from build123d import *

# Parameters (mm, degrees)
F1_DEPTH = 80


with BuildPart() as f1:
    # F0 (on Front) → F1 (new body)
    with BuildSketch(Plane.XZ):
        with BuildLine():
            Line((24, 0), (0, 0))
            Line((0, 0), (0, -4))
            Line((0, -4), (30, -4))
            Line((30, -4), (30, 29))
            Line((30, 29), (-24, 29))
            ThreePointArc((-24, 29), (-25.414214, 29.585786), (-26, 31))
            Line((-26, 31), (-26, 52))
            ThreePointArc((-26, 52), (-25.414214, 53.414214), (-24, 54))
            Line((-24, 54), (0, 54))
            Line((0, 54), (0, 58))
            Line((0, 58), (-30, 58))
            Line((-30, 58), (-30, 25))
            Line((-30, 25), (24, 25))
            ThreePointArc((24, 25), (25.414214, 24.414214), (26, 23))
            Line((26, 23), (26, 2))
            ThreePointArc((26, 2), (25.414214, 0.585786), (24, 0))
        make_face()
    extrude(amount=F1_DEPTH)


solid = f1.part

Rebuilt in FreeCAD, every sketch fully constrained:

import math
import FreeCAD as App
import Part
import Sketcher
Q = App.Units.Quantity

doc = App.newDocument("Part")
body = doc.addObject("PartDesign::Body", "Body")

sketch1 = body.newObject("Sketcher::SketchObject", "Sketch")
sketch1.AttachmentSupport = (doc.getObject("XZ_Plane"), [""])
sketch1.MapMode = "FlatFace"
sketch1.addGeometry([
    Part.LineSegment(App.Vector(24, 0, 0), App.Vector(0, 0, 0)),
    Part.LineSegment(App.Vector(0, 0, 0), App.Vector(0, -4, 0)),
    Part.LineSegment(App.Vector(0, -4, 0), App.Vector(30, -4, 0)),
    Part.LineSegment(App.Vector(30, -4, 0), App.Vector(30, 29, 0)),
    Part.LineSegment(App.Vector(30, 29, 0), App.Vector(-24, 29, 0)),
    Part.ArcOfCircle(Part.Circle(App.Vector(-24, 31, 0), App.Vector(0, 0, 1), 2), math.radians(180), math.radians(270)),
    Part.LineSegment(App.Vector(-26, 31, 0), App.Vector(-26, 52, 0)),
    Part.ArcOfCircle(Part.Circle(App.Vector(-24, 52, 0), App.Vector(0, 0, 1), 2), math.radians(90), math.radians(180)),
    Part.LineSegment(App.Vector(-24, 54, 0), App.Vector(0, 54, 0)),
    Part.LineSegment(App.Vector(0, 54, 0), App.Vector(0, 58, 0)),
    Part.LineSegment(App.Vector(0, 58, 0), App.Vector(-30, 58, 0)),
    Part.LineSegment(App.Vector(-30, 58, 0), App.Vector(-30, 25, 0)),
    Part.LineSegment(App.Vector(-30, 25, 0), App.Vector(24, 25, 0)),
    Part.ArcOfCircle(Part.Circle(App.Vector(24, 23, 0), App.Vector(0, 0, 1), 2), math.radians(0), math.radians(90)),
    Part.LineSegment(App.Vector(26, 23, 0), App.Vector(26, 2, 0)),
    Part.ArcOfCircle(Part.Circle(App.Vector(24, 2, 0), App.Vector(0, 0, 1), 2), math.radians(-90), math.radians(0)),
], False)
sketch1.addConstraint([
    Sketcher.Constraint("Coincident", 0, 2, 1, 1),
    Sketcher.Constraint("Coincident", 1, 2, 2, 1),
    Sketcher.Constraint("Coincident", 2, 2, 3, 1),
    Sketcher.Constraint("Coincident", 3, 2, 4, 1),
    Sketcher.Constraint("Tangent", 4, 2, 5, 2),
    Sketcher.Constraint("Tangent", 5, 1, 6, 1),
    Sketcher.Constraint("Tangent", 6, 2, 7, 2),
    Sketcher.Constraint("Tangent", 7, 1, 8, 1),
    Sketcher.Constraint("Coincident", 8, 2, 9, 1),
    Sketcher.Constraint("Coincident", 9, 2, 10, 1),
    Sketcher.Constraint("Coincident", 10, 2, 11, 1),
    Sketcher.Constraint("Coincident", 11, 2, 12, 1),
    Sketcher.Constraint("Tangent", 12, 2, 13, 2),
    Sketcher.Constraint("Tangent", 13, 1, 14, 1),
    Sketcher.Constraint("Tangent", 14, 2, 15, 2),
    Sketcher.Constraint("Tangent", 15, 1, 0, 1),
    Sketcher.Constraint("Horizontal", 0),
    Sketcher.Constraint("Vertical", 1),
    Sketcher.Constraint("Horizontal", 2),
    Sketcher.Constraint("Vertical", 3),
    Sketcher.Constraint("Horizontal", 4),
    Sketcher.Constraint("Vertical", 6),
    Sketcher.Constraint("Horizontal", 8),
    Sketcher.Constraint("Vertical", 9),
    Sketcher.Constraint("Horizontal", 10),
    Sketcher.Constraint("Vertical", 11),
    Sketcher.Constraint("Horizontal", 12),
    Sketcher.Constraint("Vertical", 14),
    Sketcher.Constraint("Coincident", 0, 2, -1, 1),
    Sketcher.Constraint("Equal", 5, 7),
    Sketcher.Constraint("Equal", 7, 13),
    Sketcher.Constraint("Equal", 13, 15),
    Sketcher.Constraint("PointOnObject", 8, 2, -2),
    Sketcher.Constraint("Equal", 0, 8),
    Sketcher.Constraint("Equal", 2, 10),
    Sketcher.Constraint("Equal", 1, 9),
    Sketcher.Constraint("Equal", 3, 11),
    Sketcher.Constraint("Radius", 5, Q("1.999999 mm")),
    Sketcher.Constraint("DistanceX", 0, 2, 0, 1, Q("24 mm")),
    Sketcher.Constraint("DistanceX", 2, 1, 2, 2, Q("30 mm")),
    Sketcher.Constraint("DistanceY", 1, 2, 1, 1, Q("4 mm")),
    Sketcher.Constraint("DistanceY", 3, 1, 3, 2, Q("33 mm")),
    Sketcher.Constraint("DistanceY", 6, 1, 6, 2, Q("21 mm")),
])
pad1 = body.newObject("PartDesign::Pad", "Pad")
pad1.Profile = sketch1
pad1.Length = 80

doc.recompute()
